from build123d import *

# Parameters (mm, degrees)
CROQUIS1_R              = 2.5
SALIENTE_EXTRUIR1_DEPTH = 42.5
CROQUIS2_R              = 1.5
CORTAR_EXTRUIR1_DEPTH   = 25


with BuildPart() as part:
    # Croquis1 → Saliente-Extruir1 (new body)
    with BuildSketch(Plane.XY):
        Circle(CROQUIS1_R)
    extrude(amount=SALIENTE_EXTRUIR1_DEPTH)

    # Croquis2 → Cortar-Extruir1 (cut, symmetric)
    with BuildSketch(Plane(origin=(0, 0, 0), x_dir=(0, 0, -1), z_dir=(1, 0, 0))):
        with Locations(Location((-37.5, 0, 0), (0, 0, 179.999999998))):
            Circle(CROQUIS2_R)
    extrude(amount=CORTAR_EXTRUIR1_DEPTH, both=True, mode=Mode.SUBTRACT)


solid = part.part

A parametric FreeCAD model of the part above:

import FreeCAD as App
import Part
import Sketcher

V = App.Vector
Q = App.Units.Quantity

doc = App.newDocument("Part")
body = doc.addObject("PartDesign::Body", "Body")

sketch1 = body.newObject("Sketcher::SketchObject", "Sketch")
sketch1.AttachmentSupport = (doc.getObject("XY_Plane"), [""])
sketch1.MapMode = "FlatFace"
sketch1.addGeometry(Part.Circle(V(0, 0, 0), V(0, 0, 1), 2.5), False)
sketch1.addConstraint([
    Sketcher.Constraint("Coincident", 0, 3, -1, 1),
    Sketcher.Constraint("Diameter", 0, Q("5 mm")),
])
pad1 = body.newObject("PartDesign::Pad", "Pad")
pad1.Profile = sketch1
pad1.Length = 42.5

sketch2 = body.newObject("Sketcher::SketchObject", "Sketch001")
sketch2.AttachmentSupport = (doc.getObject("YZ_Plane"), [""])
sketch2.MapMode = "FlatFace"
sketch2.addGeometry(Part.Circle(V(0, 37.5, 0), V(0, 0, 1), 1.5), False)
sketch2.addConstraint([
    Sketcher.Constraint("PointOnObject", 0, 3, -2),
    Sketcher.Constraint("Diameter", 0, Q("3 mm")),
    Sketcher.Constraint("DistanceY", -1, 1, 0, 3, Q("37.5 mm")),
])
pocket1 = body.newObject("PartDesign::Pocket", "Pocket")
pocket1.Profile = sketch2
pocket1.Length = 50
pocket1.Midplane = True

doc.recompute()
